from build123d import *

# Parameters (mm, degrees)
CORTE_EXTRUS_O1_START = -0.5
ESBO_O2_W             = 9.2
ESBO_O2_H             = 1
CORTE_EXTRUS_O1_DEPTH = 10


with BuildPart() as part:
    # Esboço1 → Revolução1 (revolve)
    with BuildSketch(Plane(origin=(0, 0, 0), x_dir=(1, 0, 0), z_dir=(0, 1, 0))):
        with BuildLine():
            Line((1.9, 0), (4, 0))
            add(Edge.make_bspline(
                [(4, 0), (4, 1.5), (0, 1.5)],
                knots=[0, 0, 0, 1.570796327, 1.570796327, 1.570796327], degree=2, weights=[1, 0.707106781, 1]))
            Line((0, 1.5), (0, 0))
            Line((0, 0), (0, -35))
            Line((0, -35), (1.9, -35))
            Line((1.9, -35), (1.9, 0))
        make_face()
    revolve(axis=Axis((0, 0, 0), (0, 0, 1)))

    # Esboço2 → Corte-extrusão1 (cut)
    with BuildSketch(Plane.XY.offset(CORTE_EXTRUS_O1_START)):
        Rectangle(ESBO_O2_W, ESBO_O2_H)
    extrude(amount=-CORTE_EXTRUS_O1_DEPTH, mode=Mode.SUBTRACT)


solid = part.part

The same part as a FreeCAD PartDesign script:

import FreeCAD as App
import Part
import Sketcher
from FreeCAD import Vector
Q = App.Units.Quantity

doc = App.newDocument("Part")
params = doc.addObject("Spreadsheet::Sheet", "Params")
for row, (alias, value) in enumerate([
    ("sketch1_height", "35 mm"),
    ("sketch1_width", "2.1 mm"),
    ("revolution_angle", "360 deg"),
    ("sketch2_height", "1 mm"),
    ("sketch2_width", "9.2 mm"),
    ("pocket1_length", "10 mm"),
], start=1):
    params.set(f"A{row}", alias)
    params.set(f"B{row}", "=" + value)
    params.setAlias(f"B{row}", alias)

body = doc.addObject("PartDesign::Body", "Body")

sketch1 = body.newObject("Sketcher::SketchObject", "Sketch")
sketch1.AttachmentSupport = (doc.getObject("XZ_Plane"), [""])
sketch1.MapMode = "FlatFace"
sketch1.addGeometry([
    Part.LineSegment(Vector(1.9, 0, 0), Vector(4, 0, 0)),
    Part.BSplineCurve([Vector(4, 0, 0), Vector(4, -1.5, 0), Vector(0, -1.5, 0)], [3, 3], [0, 1.570796327], False, 2, [1, 0.707106781, 1], False),
    Part.LineSegment(Vector(0, -1.5, 0), Vector(0, 35, 0)),
    Part.LineSegment(Vector(0, 35, 0), Vector(1.9, 35, 0)),
    Part.LineSegment(Vector(1.9, 35, 0), Vector(1.9, 0, 0)),
], False)
sketch1.addConstraint([
    Sketcher.Constraint("Block", 1),
    Sketcher.Constraint("Coincident", 0, 2, 1, 1),
    Sketcher.Constraint("Coincident", 1, 2, 2, 1),
    Sketcher.Constraint("Coincident", 2, 2, 3, 1),
    Sketcher.Constraint("Coincident", 3, 2, 4, 1),
    Sketcher.Constraint("Coincident", 4, 2, 0, 1),
    Sketcher.Constraint("Horizontal", 0),
    Sketcher.Constraint("Vertical", 2),
    Sketcher.Constraint("Horizontal", 3),
    Sketcher.Constraint("Vertical", 4),
    Sketcher.Constraint("DistanceY", 4, 2, 4, 1, Q("35 mm")),
    Sketcher.Constraint("DistanceX", 0, 1, 0, 2, Q("2.1 mm")),
])
sketch1.setExpression("Constraints[10]", "Params.sketch1_height")
sketch1.setExpression("Constraints[11]", "Params.sketch1_width")
revolution = body.newObject("PartDesign::Revolution", "Revolution")
revolution.Profile = sketch1
revolution.ReferenceAxis = (sketch1, ["V_Axis"])
revolution.setExpression("Angle", "Params.revolution_angle")

sketch2 = body.newObject("Sketcher::SketchObject", "Sketch001")
sketch2.AttachmentSupport = (doc.getObject("XY_Plane"), [""])
sketch2.MapMode = "FlatFace"
sketch2.AttachmentOffset = App.Placement(Vector(0, 0, -0.5), App.Rotation())
sketch2.addGeometry([
    Part.LineSegment(Vector(-4.6, 0.5, 0), Vector(-4.6, -0.5, 0)),
    Part.LineSegment(Vector(-4.6, -0.5, 0), Vector(4.6, -0.5, 0)),
    Part.LineSegment(Vector(4.6, -0.5, 0), Vector(4.6, 0.5, 0)),
    Part.LineSegment(Vector(4.6, 0.5, 0), Vector(-4.6, 0.5, 0)),
], False)
sketch2.addConstraint([
    Sketcher.Constraint("Coincident", 0, 2, 1, 1),
    Sketcher.Constraint("Coincident", 1, 2, 2, 1),
    Sketcher.Constraint("Coincident", 2, 2, 3, 1),
    Sketcher.Constraint("Coincident", 3, 2, 0, 1),
    Sketcher.Constraint("Vertical", 0),
    Sketcher.Constraint("Horizontal", 1),
    Sketcher.Constraint("Vertical", 2),
    Sketcher.Constraint("Horizontal", 3),
    Sketcher.Constraint("Symmetric", 0, 2, 2, 2, -1, 1),
    Sketcher.Constraint("DistanceY", 0, 2, 0, 1, Q("1 mm")),
    Sketcher.Constraint("DistanceX", 1, 1, 1, 2, Q("9.2 mm")),
])
sketch2.setExpression("Constraints[9]", "Params.sketch2_height")
sketch2.setExpression("Constraints[10]", "Params.sketch2_width")
pocket1 = body.newObject("PartDesign::Pocket", "Pocket")
pocket1.Profile = sketch2
pocket1.setExpression("Length", "Params.pocket1_length")

doc.recompute()
